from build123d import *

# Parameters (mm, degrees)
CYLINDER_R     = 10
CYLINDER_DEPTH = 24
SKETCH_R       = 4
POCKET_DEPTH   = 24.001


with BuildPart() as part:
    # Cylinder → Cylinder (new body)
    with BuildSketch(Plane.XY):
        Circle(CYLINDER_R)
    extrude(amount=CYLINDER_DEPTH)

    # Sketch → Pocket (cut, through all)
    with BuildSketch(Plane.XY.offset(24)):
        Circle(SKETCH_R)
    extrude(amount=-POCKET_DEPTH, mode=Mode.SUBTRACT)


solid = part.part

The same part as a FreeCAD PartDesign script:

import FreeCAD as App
import Part
import Sketcher

V = App.Vector
Q = App.Units.Quantity

doc = App.newDocument("Part")
body = doc.addObject("PartDesign::Body", "Body")

# Sketch on XY plane
sketch1 = doc.addObject("Sketcher::SketchObject", "Sketch")
body.addObject(sketch1)
sketch1.AttachmentSupport = (doc.XY_Plane, [""])
sketch1.MapMode = "FlatFace"
sketch1.addGeometry(Part.Circle(V(0, 0, 0), V(0, 0, 1), 10), False)
sketch1.addConstraint([
    Sketcher.Constraint("Coincident", 0, 3, -1, 1),
    Sketcher.Constraint("Diameter", 0, Q("20 mm")),
])
pad1 = doc.addObject("PartDesign::Pad", "Pad")
body.addObject(pad1)
pad1.Profile = sketch1
pad1.Length = 24

# Sketch on XY plane
sketch2 = doc.addObject("Sketcher::SketchObject", "Sketch001")
body.addObject(sketch2)
sketch2.AttachmentSupport = (doc.XY_Plane, [""])
sketch2.MapMode = "FlatFace"
sketch2.AttachmentOffset = App.Placement(V(0, 0, 24), App.Rotation())
sketch2.addGeometry(Part.Circle(V(0, 0, 0), V(0, 0, 1), 4), False)
sketch2.addConstraint([
    Sketcher.Constraint("Coincident", 0, 3, -1, 1),
    Sketcher.Constraint("Diameter", 0, Q("8 mm")),
])
pocket1 = doc.addObject("PartDesign::Pocket", "Pocket")
body.addObject(pocket1)
pocket1.Profile = sketch2
pocket1.Type = "ThroughAll"

doc.recompute()
